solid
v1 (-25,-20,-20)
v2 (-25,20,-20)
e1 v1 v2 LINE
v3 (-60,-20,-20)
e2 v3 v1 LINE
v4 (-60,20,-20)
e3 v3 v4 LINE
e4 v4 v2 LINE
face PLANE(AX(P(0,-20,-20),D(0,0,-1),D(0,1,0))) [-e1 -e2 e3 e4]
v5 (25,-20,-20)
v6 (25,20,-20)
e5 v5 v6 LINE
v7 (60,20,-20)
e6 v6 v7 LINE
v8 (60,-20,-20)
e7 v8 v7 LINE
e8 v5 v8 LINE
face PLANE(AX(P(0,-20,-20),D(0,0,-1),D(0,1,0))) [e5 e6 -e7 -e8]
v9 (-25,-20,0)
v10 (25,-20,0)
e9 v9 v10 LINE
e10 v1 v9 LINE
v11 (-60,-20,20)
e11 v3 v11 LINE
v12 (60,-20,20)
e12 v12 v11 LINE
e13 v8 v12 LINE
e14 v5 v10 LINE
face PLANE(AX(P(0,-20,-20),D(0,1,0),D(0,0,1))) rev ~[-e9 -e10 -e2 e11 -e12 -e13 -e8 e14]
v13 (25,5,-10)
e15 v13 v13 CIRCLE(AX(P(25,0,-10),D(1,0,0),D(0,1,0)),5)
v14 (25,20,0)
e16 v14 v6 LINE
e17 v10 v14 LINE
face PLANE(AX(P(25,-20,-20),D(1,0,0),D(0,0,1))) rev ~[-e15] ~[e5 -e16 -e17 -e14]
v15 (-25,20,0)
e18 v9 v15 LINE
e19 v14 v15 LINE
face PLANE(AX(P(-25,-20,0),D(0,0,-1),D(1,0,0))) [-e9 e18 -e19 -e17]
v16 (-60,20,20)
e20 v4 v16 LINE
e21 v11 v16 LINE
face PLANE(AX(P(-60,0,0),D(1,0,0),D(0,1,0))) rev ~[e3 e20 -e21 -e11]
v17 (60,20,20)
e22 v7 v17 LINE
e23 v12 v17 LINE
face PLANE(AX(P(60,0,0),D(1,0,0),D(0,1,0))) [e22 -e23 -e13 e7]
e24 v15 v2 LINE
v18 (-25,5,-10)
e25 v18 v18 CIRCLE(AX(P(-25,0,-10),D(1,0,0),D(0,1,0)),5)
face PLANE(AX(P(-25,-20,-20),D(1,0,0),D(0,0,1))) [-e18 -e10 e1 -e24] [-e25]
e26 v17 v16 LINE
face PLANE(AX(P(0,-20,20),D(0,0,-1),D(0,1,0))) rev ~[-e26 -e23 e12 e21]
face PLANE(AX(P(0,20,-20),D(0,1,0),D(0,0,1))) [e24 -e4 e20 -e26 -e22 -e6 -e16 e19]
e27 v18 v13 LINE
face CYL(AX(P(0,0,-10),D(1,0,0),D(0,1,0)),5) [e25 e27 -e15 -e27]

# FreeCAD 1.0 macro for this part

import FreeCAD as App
import Part
import Sketcher
from FreeCAD import Vector

doc = App.newDocument("Part")
body = doc.addObject("PartDesign::Body", "Body")

# Sketch on YZ plane
sketch1 = body.newObject("Sketcher::SketchObject", "Sketch")
sketch1.AttachmentSupport = (doc.getObject("YZ_Plane"), [""])
sketch1.MapMode = "FlatFace"
sketch1.addGeometry([
    Part.LineSegment(Vector(-20, 20, 0), Vector(-20, -20, 0)),
    Part.LineSegment(Vector(-20, -20, 0), Vector(20, -20, 0)),
    Part.LineSegment(Vector(20, -20, 0), Vector(20, 20, 0)),
    Part.LineSegment(Vector(20, 20, 0), Vector(-20, 20, 0)),
], False)
sketch1.addConstraint([
    Sketcher.Constraint("Coincident", 0, 2, 1, 1),
    Sketcher.Constraint("Coincident", 1, 2, 2, 1),
    Sketcher.Constraint("Coincident", 2, 2, 3, 1),
    Sketcher.Constraint("Coincident", 3, 2, 0, 1),
    Sketcher.Constraint("Vertical", 0),
    Sketcher.Constraint("Horizontal", 1),
    Sketcher.Constraint("Vertical", 2),
    Sketcher.Constraint("Horizontal", 3),
    Sketcher.Constraint("Symmetric", 0, 2, 2, 2, -1, 1),
    Sketcher.Constraint("Equal", 3, 0),
    Sketcher.Constraint("DistanceX", 1, 1, 1, 2, 40.0),
])
pad1 = body.newObject("PartDesign::Pad", "Pad")
pad1.Profile = sketch1
pad1.Length = 120
pad1.Midplane = True

# Sketch on XZ plane
sketch2 = body.newObject("Sketcher::SketchObject", "Sketch001")
sketch2.AttachmentSupport = (doc.getObject("XZ_Plane"), [""])
sketch2.MapMode = "FlatFace"
sketch2.AttachmentOffset = App.Placement(Vector(0, 0, 20), App.Rotation())
sketch2.addGeometry([
    Part.LineSegment(Vector(-25, 0, 0), Vector(-25, -20, 0)),
    Part.LineSegment(Vector(-25, -20, 0), Vector(25, -20, 0)),
    Part.LineSegment(Vector(25, -20, 0), Vector(25, 0, 0)),
    Part.LineSegment(Vector(25, 0, 0), Vector(-25, 0, 0)),
], False)
sketch2.addConstraint([
    Sketcher.Constraint("Coincident", 0, 2, 1, 1),
    Sketcher.Constraint("Coincident", 1, 2, 2, 1),
    Sketcher.Constraint("Coincident", 2, 2, 3, 1),
    Sketcher.Constraint("Coincident", 3, 2, 0, 1),
    Sketcher.Constraint("Vertical", 0),
    Sketcher.Constraint("Horizontal", 1),
    Sketcher.Constraint("Vertical", 2),
    Sketcher.Constraint("Horizontal", 3),
    Sketcher.Constraint("Symmetric", 2, 2, 3, 2, -1, 1),
    Sketcher.Constraint("DistanceX", 1, 1, 1, 2, 50.0),
    Sketcher.Constraint("DistanceY", 0, 2, 0, 1, 20.0),
])
pocket1 = body.newObject("PartDesign::Pocket", "Pocket")
pocket1.Profile = sketch2
pocket1.Type = "ThroughAll"

# Sketch on YZ plane
sketch3 = body.newObject("Sketcher::SketchObject", "Sketch002")
sketch3.AttachmentSupport = (doc.getObject("YZ_Plane"), [""])
sketch3.MapMode = "FlatFace"
sketch3.addGeometry(Part.Circle(Vector(0, -10, 0), Vector(0, 0, 1), 5), False)
sketch3.addConstraint([
    Sketcher.Constraint("PointOnObject", 0, 3, -2),
    Sketcher.Constraint("Diameter", 0, 10.0),
    Sketcher.Constraint("DistanceY", 0, 3, -1, 1, 10.0),
])
pad2 = body.newObject("PartDesign::Pad", "Pad001")
pad2.Profile = sketch3
pad2.Length = 50
pad2.Midplane = True

doc.recompute()
